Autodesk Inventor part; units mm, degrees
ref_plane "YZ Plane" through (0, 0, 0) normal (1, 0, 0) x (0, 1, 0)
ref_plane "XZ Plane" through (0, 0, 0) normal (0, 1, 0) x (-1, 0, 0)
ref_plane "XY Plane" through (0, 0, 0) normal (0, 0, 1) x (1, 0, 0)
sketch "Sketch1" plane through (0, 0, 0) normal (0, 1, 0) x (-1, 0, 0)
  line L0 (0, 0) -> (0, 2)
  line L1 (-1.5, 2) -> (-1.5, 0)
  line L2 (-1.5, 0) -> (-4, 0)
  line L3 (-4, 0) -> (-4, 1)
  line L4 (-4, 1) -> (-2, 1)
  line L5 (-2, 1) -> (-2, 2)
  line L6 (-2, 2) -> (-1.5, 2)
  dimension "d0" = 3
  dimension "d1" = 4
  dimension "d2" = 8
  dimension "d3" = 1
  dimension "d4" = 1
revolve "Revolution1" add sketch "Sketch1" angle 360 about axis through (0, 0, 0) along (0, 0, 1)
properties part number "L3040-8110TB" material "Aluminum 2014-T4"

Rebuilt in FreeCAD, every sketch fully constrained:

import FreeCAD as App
import Part
import Sketcher
Q = App.Units.Quantity


def add_polygon(sketch, points):
    """Adds a closed chain of lines whose ends are joined by coincident constraints."""
    first, n = sketch.GeometryCount, len(points)
    for a, b in zip(points, points[1:] + points[:1]):
        sketch.addGeometry(Part.LineSegment(App.Vector(*a, 0), App.Vector(*b, 0)), False)
    for i in range(n):
        sketch.addConstraint(Sketcher.Constraint("Coincident", first + i, 2, first + (i + 1) % n, 1))

doc = App.newDocument("Part")
params = doc.addObject("Spreadsheet::Sheet", "Params")
for row, (alias, value) in enumerate([
    ("sketch1_height", "1 mm"),
    ("sketch1_width", "0.5 mm"),
    ("revolution_angle", "360 deg"),
], start=1):
    params.set(f"A{row}", alias)
    params.set(f"B{row}", "=" + value)
    params.setAlias(f"B{row}", alias)

body = doc.addObject("PartDesign::Body", "Body")

# Sketch on XZ plane
sketch1 = doc.addObject("Sketcher::SketchObject", "Sketch")
body.addObject(sketch1)
sketch1.AttachmentSupport = (doc.XZ_Plane, [""])
sketch1.MapMode = "FlatFace"
add_polygon(sketch1, [(1.5, 0), (1.5, 2), (2, 2), (2, 1), (4, 1), (4, 0)])  # lines 0-5
sketch1.addConstraint(Sketcher.Constraint("Vertical", 0))
sketch1.addConstraint(Sketcher.Constraint("Horizontal", 1))
sketch1.addConstraint(Sketcher.Constraint("Vertical", 2))
sketch1.addConstraint(Sketcher.Constraint("Horizontal", 3))
sketch1.addConstraint(Sketcher.Constraint("Vertical", 4))
sketch1.addConstraint(Sketcher.Constraint("Horizontal", 5))
sketch1.addConstraint(Sketcher.Constraint("PointOnObject", 4, 2, -1))
sketch1.addConstraint(Sketcher.Constraint("Equal", 3, 0))
sketch1.addConstraint(Sketcher.Constraint("Equal", 2, 4))
sketch1.addConstraint(Sketcher.Constraint("DistanceY", 2, 2, 2, 1, Q("1 mm")))
sketch1.addConstraint(Sketcher.Constraint("DistanceX", -1, 1, 3, 2, Q("4 mm")))
sketch1.addConstraint(Sketcher.Constraint("DistanceX", 1, 1, 1, 2, Q("0.5 mm")))
sketch1.setExpression("Constraints[15]", "Params.sketch1_height")
sketch1.setExpression("Constraints[17]", "Params.sketch1_width")
revolution = doc.addObject("PartDesign::Revolution", "Revolution")
body.addObject(revolution)
revolution.Profile = sketch1
revolution.ReferenceAxis = (sketch1, ["V_Axis"])
revolution.setExpression("Angle", "Params.revolution_angle")

doc.recompute()
